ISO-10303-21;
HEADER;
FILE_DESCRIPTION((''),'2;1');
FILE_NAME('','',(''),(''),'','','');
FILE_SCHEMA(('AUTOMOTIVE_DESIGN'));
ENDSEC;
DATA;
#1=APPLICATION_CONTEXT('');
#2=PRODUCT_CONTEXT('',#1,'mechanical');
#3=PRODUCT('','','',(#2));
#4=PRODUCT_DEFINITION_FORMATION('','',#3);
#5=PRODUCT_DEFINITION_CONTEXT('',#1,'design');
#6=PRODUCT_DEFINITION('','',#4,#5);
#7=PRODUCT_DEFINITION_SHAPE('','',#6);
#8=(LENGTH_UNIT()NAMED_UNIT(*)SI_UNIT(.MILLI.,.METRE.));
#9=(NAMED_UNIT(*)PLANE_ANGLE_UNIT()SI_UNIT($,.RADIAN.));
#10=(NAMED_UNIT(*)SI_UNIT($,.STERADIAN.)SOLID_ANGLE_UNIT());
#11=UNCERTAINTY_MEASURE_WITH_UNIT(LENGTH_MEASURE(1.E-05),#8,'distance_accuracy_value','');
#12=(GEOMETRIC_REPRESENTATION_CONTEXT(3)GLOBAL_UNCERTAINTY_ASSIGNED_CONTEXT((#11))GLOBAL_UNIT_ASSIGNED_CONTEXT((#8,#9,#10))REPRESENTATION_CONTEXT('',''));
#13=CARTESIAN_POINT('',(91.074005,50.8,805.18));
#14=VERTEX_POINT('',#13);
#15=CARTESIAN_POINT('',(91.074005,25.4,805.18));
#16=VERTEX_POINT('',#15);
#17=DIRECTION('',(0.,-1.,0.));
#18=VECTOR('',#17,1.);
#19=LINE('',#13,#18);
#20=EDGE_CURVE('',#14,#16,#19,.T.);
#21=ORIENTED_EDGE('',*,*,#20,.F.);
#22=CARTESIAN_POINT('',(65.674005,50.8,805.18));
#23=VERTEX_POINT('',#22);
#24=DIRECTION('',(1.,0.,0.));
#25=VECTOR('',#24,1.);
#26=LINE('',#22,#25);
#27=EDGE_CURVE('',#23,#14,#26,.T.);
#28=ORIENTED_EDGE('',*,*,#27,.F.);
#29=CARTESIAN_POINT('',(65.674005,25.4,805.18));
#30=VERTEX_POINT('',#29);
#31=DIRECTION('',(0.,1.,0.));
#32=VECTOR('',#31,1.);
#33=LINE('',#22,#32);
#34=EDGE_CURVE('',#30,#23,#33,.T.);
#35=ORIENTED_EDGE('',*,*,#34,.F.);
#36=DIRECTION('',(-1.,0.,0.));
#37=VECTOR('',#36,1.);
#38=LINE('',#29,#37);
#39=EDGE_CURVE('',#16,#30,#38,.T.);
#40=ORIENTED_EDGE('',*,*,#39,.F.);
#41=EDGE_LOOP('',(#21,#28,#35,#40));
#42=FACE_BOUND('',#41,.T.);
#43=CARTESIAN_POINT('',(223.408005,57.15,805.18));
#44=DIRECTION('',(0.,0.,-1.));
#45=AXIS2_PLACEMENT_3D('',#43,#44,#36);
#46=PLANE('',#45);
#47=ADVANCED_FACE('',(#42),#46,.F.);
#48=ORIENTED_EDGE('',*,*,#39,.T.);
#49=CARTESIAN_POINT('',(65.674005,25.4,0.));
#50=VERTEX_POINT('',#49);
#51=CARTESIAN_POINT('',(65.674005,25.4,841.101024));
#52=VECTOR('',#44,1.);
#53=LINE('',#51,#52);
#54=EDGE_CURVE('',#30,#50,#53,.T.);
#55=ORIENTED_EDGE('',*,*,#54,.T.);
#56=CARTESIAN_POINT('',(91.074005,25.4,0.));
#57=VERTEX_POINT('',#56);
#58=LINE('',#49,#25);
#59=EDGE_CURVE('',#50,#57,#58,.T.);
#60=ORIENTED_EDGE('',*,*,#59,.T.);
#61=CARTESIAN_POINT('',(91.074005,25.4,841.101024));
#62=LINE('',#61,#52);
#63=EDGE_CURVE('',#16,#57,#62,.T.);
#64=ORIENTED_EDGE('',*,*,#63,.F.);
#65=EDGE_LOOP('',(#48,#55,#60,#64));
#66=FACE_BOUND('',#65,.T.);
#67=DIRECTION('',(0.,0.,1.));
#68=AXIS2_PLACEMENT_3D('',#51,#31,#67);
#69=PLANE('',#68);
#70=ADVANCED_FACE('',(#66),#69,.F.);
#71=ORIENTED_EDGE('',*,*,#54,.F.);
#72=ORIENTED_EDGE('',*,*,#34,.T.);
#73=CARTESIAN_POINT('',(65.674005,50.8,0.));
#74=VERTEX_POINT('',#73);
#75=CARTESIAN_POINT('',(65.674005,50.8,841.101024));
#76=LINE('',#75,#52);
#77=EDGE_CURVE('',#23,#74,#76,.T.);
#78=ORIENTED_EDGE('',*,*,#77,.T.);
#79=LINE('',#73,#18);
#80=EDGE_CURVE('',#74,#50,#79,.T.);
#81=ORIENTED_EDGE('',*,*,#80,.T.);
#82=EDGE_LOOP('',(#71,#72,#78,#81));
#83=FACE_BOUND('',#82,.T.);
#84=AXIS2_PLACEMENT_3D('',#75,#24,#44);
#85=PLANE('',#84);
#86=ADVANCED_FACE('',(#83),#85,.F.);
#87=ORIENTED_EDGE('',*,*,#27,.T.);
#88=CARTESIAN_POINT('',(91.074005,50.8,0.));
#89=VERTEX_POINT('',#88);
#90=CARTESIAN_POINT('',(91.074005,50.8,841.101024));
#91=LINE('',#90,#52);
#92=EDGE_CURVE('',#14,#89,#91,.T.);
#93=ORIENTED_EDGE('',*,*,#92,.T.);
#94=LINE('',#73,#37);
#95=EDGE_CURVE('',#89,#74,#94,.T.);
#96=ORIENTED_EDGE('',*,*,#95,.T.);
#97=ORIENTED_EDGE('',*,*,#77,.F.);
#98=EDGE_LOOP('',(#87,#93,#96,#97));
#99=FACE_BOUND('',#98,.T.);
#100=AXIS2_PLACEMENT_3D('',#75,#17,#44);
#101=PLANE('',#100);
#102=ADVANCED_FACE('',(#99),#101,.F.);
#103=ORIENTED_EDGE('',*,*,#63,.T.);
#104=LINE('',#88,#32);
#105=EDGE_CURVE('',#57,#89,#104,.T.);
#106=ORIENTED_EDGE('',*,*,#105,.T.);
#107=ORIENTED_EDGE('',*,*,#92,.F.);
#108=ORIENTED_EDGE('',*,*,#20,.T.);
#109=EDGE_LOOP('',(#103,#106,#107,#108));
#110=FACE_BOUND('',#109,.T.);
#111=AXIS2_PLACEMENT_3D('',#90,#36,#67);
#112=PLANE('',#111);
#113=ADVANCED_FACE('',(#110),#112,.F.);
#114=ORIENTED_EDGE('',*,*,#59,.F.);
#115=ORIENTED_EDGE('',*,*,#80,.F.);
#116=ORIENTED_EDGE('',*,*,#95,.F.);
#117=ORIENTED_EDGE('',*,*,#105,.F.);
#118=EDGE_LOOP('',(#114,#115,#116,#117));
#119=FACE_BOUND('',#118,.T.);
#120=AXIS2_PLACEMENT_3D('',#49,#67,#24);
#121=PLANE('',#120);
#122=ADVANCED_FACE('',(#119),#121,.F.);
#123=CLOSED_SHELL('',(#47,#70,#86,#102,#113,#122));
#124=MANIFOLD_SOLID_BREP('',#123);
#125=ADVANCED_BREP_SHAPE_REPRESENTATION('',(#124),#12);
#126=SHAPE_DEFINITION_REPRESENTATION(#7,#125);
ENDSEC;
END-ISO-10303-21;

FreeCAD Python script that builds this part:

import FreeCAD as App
import Part
import Sketcher
from FreeCAD import Vector
Q = App.Units.Quantity


def add_polygon(sketch, points):
    """Adds a closed chain of lines whose ends are joined by coincident constraints."""
    first, n = sketch.GeometryCount, len(points)
    for a, b in zip(points, points[1:] + points[:1]):
        sketch.addGeometry(Part.LineSegment(App.Vector(*a, 0), App.Vector(*b, 0)), False)
    for i in range(n):
        sketch.addConstraint(Sketcher.Constraint("Coincident", first + i, 2, first + (i + 1) % n, 1))

doc = App.newDocument("Part")
body = doc.addObject("PartDesign::Body", "Body")

# Sketch on XY plane
sketch1 = body.newObject("Sketcher::SketchObject", "Sketch")
sketch1.AttachmentSupport = (doc.getObject("XY_Plane"), [""])
sketch1.MapMode = "FlatFace"
add_polygon(sketch1, [(66, 51), (66, 25), (91, 25), (91, 51)])  # lines 0-3
sketch1.addConstraint([
    Sketcher.Constraint("Vertical", 0),
    Sketcher.Constraint("Horizontal", 1),
    Sketcher.Constraint("Vertical", 2),
    Sketcher.Constraint("Horizontal", 3),
    Sketcher.Constraint("Equal", 3, 0),
    Sketcher.Constraint("DistanceX", 1, 1, 1, 2, Q("1 in")),
    Sketcher.Constraint("DistanceY", -1, 1, 0, 2, Q("1 in")),
    Sketcher.Constraint("DistanceX", -1, 1, 0, 2, 65.674005),
])
pad1 = body.newObject("PartDesign::Pad", "Pad")
pad1.Profile = sketch1
pad1.Length = Q("31.7 in")

doc.recompute()
